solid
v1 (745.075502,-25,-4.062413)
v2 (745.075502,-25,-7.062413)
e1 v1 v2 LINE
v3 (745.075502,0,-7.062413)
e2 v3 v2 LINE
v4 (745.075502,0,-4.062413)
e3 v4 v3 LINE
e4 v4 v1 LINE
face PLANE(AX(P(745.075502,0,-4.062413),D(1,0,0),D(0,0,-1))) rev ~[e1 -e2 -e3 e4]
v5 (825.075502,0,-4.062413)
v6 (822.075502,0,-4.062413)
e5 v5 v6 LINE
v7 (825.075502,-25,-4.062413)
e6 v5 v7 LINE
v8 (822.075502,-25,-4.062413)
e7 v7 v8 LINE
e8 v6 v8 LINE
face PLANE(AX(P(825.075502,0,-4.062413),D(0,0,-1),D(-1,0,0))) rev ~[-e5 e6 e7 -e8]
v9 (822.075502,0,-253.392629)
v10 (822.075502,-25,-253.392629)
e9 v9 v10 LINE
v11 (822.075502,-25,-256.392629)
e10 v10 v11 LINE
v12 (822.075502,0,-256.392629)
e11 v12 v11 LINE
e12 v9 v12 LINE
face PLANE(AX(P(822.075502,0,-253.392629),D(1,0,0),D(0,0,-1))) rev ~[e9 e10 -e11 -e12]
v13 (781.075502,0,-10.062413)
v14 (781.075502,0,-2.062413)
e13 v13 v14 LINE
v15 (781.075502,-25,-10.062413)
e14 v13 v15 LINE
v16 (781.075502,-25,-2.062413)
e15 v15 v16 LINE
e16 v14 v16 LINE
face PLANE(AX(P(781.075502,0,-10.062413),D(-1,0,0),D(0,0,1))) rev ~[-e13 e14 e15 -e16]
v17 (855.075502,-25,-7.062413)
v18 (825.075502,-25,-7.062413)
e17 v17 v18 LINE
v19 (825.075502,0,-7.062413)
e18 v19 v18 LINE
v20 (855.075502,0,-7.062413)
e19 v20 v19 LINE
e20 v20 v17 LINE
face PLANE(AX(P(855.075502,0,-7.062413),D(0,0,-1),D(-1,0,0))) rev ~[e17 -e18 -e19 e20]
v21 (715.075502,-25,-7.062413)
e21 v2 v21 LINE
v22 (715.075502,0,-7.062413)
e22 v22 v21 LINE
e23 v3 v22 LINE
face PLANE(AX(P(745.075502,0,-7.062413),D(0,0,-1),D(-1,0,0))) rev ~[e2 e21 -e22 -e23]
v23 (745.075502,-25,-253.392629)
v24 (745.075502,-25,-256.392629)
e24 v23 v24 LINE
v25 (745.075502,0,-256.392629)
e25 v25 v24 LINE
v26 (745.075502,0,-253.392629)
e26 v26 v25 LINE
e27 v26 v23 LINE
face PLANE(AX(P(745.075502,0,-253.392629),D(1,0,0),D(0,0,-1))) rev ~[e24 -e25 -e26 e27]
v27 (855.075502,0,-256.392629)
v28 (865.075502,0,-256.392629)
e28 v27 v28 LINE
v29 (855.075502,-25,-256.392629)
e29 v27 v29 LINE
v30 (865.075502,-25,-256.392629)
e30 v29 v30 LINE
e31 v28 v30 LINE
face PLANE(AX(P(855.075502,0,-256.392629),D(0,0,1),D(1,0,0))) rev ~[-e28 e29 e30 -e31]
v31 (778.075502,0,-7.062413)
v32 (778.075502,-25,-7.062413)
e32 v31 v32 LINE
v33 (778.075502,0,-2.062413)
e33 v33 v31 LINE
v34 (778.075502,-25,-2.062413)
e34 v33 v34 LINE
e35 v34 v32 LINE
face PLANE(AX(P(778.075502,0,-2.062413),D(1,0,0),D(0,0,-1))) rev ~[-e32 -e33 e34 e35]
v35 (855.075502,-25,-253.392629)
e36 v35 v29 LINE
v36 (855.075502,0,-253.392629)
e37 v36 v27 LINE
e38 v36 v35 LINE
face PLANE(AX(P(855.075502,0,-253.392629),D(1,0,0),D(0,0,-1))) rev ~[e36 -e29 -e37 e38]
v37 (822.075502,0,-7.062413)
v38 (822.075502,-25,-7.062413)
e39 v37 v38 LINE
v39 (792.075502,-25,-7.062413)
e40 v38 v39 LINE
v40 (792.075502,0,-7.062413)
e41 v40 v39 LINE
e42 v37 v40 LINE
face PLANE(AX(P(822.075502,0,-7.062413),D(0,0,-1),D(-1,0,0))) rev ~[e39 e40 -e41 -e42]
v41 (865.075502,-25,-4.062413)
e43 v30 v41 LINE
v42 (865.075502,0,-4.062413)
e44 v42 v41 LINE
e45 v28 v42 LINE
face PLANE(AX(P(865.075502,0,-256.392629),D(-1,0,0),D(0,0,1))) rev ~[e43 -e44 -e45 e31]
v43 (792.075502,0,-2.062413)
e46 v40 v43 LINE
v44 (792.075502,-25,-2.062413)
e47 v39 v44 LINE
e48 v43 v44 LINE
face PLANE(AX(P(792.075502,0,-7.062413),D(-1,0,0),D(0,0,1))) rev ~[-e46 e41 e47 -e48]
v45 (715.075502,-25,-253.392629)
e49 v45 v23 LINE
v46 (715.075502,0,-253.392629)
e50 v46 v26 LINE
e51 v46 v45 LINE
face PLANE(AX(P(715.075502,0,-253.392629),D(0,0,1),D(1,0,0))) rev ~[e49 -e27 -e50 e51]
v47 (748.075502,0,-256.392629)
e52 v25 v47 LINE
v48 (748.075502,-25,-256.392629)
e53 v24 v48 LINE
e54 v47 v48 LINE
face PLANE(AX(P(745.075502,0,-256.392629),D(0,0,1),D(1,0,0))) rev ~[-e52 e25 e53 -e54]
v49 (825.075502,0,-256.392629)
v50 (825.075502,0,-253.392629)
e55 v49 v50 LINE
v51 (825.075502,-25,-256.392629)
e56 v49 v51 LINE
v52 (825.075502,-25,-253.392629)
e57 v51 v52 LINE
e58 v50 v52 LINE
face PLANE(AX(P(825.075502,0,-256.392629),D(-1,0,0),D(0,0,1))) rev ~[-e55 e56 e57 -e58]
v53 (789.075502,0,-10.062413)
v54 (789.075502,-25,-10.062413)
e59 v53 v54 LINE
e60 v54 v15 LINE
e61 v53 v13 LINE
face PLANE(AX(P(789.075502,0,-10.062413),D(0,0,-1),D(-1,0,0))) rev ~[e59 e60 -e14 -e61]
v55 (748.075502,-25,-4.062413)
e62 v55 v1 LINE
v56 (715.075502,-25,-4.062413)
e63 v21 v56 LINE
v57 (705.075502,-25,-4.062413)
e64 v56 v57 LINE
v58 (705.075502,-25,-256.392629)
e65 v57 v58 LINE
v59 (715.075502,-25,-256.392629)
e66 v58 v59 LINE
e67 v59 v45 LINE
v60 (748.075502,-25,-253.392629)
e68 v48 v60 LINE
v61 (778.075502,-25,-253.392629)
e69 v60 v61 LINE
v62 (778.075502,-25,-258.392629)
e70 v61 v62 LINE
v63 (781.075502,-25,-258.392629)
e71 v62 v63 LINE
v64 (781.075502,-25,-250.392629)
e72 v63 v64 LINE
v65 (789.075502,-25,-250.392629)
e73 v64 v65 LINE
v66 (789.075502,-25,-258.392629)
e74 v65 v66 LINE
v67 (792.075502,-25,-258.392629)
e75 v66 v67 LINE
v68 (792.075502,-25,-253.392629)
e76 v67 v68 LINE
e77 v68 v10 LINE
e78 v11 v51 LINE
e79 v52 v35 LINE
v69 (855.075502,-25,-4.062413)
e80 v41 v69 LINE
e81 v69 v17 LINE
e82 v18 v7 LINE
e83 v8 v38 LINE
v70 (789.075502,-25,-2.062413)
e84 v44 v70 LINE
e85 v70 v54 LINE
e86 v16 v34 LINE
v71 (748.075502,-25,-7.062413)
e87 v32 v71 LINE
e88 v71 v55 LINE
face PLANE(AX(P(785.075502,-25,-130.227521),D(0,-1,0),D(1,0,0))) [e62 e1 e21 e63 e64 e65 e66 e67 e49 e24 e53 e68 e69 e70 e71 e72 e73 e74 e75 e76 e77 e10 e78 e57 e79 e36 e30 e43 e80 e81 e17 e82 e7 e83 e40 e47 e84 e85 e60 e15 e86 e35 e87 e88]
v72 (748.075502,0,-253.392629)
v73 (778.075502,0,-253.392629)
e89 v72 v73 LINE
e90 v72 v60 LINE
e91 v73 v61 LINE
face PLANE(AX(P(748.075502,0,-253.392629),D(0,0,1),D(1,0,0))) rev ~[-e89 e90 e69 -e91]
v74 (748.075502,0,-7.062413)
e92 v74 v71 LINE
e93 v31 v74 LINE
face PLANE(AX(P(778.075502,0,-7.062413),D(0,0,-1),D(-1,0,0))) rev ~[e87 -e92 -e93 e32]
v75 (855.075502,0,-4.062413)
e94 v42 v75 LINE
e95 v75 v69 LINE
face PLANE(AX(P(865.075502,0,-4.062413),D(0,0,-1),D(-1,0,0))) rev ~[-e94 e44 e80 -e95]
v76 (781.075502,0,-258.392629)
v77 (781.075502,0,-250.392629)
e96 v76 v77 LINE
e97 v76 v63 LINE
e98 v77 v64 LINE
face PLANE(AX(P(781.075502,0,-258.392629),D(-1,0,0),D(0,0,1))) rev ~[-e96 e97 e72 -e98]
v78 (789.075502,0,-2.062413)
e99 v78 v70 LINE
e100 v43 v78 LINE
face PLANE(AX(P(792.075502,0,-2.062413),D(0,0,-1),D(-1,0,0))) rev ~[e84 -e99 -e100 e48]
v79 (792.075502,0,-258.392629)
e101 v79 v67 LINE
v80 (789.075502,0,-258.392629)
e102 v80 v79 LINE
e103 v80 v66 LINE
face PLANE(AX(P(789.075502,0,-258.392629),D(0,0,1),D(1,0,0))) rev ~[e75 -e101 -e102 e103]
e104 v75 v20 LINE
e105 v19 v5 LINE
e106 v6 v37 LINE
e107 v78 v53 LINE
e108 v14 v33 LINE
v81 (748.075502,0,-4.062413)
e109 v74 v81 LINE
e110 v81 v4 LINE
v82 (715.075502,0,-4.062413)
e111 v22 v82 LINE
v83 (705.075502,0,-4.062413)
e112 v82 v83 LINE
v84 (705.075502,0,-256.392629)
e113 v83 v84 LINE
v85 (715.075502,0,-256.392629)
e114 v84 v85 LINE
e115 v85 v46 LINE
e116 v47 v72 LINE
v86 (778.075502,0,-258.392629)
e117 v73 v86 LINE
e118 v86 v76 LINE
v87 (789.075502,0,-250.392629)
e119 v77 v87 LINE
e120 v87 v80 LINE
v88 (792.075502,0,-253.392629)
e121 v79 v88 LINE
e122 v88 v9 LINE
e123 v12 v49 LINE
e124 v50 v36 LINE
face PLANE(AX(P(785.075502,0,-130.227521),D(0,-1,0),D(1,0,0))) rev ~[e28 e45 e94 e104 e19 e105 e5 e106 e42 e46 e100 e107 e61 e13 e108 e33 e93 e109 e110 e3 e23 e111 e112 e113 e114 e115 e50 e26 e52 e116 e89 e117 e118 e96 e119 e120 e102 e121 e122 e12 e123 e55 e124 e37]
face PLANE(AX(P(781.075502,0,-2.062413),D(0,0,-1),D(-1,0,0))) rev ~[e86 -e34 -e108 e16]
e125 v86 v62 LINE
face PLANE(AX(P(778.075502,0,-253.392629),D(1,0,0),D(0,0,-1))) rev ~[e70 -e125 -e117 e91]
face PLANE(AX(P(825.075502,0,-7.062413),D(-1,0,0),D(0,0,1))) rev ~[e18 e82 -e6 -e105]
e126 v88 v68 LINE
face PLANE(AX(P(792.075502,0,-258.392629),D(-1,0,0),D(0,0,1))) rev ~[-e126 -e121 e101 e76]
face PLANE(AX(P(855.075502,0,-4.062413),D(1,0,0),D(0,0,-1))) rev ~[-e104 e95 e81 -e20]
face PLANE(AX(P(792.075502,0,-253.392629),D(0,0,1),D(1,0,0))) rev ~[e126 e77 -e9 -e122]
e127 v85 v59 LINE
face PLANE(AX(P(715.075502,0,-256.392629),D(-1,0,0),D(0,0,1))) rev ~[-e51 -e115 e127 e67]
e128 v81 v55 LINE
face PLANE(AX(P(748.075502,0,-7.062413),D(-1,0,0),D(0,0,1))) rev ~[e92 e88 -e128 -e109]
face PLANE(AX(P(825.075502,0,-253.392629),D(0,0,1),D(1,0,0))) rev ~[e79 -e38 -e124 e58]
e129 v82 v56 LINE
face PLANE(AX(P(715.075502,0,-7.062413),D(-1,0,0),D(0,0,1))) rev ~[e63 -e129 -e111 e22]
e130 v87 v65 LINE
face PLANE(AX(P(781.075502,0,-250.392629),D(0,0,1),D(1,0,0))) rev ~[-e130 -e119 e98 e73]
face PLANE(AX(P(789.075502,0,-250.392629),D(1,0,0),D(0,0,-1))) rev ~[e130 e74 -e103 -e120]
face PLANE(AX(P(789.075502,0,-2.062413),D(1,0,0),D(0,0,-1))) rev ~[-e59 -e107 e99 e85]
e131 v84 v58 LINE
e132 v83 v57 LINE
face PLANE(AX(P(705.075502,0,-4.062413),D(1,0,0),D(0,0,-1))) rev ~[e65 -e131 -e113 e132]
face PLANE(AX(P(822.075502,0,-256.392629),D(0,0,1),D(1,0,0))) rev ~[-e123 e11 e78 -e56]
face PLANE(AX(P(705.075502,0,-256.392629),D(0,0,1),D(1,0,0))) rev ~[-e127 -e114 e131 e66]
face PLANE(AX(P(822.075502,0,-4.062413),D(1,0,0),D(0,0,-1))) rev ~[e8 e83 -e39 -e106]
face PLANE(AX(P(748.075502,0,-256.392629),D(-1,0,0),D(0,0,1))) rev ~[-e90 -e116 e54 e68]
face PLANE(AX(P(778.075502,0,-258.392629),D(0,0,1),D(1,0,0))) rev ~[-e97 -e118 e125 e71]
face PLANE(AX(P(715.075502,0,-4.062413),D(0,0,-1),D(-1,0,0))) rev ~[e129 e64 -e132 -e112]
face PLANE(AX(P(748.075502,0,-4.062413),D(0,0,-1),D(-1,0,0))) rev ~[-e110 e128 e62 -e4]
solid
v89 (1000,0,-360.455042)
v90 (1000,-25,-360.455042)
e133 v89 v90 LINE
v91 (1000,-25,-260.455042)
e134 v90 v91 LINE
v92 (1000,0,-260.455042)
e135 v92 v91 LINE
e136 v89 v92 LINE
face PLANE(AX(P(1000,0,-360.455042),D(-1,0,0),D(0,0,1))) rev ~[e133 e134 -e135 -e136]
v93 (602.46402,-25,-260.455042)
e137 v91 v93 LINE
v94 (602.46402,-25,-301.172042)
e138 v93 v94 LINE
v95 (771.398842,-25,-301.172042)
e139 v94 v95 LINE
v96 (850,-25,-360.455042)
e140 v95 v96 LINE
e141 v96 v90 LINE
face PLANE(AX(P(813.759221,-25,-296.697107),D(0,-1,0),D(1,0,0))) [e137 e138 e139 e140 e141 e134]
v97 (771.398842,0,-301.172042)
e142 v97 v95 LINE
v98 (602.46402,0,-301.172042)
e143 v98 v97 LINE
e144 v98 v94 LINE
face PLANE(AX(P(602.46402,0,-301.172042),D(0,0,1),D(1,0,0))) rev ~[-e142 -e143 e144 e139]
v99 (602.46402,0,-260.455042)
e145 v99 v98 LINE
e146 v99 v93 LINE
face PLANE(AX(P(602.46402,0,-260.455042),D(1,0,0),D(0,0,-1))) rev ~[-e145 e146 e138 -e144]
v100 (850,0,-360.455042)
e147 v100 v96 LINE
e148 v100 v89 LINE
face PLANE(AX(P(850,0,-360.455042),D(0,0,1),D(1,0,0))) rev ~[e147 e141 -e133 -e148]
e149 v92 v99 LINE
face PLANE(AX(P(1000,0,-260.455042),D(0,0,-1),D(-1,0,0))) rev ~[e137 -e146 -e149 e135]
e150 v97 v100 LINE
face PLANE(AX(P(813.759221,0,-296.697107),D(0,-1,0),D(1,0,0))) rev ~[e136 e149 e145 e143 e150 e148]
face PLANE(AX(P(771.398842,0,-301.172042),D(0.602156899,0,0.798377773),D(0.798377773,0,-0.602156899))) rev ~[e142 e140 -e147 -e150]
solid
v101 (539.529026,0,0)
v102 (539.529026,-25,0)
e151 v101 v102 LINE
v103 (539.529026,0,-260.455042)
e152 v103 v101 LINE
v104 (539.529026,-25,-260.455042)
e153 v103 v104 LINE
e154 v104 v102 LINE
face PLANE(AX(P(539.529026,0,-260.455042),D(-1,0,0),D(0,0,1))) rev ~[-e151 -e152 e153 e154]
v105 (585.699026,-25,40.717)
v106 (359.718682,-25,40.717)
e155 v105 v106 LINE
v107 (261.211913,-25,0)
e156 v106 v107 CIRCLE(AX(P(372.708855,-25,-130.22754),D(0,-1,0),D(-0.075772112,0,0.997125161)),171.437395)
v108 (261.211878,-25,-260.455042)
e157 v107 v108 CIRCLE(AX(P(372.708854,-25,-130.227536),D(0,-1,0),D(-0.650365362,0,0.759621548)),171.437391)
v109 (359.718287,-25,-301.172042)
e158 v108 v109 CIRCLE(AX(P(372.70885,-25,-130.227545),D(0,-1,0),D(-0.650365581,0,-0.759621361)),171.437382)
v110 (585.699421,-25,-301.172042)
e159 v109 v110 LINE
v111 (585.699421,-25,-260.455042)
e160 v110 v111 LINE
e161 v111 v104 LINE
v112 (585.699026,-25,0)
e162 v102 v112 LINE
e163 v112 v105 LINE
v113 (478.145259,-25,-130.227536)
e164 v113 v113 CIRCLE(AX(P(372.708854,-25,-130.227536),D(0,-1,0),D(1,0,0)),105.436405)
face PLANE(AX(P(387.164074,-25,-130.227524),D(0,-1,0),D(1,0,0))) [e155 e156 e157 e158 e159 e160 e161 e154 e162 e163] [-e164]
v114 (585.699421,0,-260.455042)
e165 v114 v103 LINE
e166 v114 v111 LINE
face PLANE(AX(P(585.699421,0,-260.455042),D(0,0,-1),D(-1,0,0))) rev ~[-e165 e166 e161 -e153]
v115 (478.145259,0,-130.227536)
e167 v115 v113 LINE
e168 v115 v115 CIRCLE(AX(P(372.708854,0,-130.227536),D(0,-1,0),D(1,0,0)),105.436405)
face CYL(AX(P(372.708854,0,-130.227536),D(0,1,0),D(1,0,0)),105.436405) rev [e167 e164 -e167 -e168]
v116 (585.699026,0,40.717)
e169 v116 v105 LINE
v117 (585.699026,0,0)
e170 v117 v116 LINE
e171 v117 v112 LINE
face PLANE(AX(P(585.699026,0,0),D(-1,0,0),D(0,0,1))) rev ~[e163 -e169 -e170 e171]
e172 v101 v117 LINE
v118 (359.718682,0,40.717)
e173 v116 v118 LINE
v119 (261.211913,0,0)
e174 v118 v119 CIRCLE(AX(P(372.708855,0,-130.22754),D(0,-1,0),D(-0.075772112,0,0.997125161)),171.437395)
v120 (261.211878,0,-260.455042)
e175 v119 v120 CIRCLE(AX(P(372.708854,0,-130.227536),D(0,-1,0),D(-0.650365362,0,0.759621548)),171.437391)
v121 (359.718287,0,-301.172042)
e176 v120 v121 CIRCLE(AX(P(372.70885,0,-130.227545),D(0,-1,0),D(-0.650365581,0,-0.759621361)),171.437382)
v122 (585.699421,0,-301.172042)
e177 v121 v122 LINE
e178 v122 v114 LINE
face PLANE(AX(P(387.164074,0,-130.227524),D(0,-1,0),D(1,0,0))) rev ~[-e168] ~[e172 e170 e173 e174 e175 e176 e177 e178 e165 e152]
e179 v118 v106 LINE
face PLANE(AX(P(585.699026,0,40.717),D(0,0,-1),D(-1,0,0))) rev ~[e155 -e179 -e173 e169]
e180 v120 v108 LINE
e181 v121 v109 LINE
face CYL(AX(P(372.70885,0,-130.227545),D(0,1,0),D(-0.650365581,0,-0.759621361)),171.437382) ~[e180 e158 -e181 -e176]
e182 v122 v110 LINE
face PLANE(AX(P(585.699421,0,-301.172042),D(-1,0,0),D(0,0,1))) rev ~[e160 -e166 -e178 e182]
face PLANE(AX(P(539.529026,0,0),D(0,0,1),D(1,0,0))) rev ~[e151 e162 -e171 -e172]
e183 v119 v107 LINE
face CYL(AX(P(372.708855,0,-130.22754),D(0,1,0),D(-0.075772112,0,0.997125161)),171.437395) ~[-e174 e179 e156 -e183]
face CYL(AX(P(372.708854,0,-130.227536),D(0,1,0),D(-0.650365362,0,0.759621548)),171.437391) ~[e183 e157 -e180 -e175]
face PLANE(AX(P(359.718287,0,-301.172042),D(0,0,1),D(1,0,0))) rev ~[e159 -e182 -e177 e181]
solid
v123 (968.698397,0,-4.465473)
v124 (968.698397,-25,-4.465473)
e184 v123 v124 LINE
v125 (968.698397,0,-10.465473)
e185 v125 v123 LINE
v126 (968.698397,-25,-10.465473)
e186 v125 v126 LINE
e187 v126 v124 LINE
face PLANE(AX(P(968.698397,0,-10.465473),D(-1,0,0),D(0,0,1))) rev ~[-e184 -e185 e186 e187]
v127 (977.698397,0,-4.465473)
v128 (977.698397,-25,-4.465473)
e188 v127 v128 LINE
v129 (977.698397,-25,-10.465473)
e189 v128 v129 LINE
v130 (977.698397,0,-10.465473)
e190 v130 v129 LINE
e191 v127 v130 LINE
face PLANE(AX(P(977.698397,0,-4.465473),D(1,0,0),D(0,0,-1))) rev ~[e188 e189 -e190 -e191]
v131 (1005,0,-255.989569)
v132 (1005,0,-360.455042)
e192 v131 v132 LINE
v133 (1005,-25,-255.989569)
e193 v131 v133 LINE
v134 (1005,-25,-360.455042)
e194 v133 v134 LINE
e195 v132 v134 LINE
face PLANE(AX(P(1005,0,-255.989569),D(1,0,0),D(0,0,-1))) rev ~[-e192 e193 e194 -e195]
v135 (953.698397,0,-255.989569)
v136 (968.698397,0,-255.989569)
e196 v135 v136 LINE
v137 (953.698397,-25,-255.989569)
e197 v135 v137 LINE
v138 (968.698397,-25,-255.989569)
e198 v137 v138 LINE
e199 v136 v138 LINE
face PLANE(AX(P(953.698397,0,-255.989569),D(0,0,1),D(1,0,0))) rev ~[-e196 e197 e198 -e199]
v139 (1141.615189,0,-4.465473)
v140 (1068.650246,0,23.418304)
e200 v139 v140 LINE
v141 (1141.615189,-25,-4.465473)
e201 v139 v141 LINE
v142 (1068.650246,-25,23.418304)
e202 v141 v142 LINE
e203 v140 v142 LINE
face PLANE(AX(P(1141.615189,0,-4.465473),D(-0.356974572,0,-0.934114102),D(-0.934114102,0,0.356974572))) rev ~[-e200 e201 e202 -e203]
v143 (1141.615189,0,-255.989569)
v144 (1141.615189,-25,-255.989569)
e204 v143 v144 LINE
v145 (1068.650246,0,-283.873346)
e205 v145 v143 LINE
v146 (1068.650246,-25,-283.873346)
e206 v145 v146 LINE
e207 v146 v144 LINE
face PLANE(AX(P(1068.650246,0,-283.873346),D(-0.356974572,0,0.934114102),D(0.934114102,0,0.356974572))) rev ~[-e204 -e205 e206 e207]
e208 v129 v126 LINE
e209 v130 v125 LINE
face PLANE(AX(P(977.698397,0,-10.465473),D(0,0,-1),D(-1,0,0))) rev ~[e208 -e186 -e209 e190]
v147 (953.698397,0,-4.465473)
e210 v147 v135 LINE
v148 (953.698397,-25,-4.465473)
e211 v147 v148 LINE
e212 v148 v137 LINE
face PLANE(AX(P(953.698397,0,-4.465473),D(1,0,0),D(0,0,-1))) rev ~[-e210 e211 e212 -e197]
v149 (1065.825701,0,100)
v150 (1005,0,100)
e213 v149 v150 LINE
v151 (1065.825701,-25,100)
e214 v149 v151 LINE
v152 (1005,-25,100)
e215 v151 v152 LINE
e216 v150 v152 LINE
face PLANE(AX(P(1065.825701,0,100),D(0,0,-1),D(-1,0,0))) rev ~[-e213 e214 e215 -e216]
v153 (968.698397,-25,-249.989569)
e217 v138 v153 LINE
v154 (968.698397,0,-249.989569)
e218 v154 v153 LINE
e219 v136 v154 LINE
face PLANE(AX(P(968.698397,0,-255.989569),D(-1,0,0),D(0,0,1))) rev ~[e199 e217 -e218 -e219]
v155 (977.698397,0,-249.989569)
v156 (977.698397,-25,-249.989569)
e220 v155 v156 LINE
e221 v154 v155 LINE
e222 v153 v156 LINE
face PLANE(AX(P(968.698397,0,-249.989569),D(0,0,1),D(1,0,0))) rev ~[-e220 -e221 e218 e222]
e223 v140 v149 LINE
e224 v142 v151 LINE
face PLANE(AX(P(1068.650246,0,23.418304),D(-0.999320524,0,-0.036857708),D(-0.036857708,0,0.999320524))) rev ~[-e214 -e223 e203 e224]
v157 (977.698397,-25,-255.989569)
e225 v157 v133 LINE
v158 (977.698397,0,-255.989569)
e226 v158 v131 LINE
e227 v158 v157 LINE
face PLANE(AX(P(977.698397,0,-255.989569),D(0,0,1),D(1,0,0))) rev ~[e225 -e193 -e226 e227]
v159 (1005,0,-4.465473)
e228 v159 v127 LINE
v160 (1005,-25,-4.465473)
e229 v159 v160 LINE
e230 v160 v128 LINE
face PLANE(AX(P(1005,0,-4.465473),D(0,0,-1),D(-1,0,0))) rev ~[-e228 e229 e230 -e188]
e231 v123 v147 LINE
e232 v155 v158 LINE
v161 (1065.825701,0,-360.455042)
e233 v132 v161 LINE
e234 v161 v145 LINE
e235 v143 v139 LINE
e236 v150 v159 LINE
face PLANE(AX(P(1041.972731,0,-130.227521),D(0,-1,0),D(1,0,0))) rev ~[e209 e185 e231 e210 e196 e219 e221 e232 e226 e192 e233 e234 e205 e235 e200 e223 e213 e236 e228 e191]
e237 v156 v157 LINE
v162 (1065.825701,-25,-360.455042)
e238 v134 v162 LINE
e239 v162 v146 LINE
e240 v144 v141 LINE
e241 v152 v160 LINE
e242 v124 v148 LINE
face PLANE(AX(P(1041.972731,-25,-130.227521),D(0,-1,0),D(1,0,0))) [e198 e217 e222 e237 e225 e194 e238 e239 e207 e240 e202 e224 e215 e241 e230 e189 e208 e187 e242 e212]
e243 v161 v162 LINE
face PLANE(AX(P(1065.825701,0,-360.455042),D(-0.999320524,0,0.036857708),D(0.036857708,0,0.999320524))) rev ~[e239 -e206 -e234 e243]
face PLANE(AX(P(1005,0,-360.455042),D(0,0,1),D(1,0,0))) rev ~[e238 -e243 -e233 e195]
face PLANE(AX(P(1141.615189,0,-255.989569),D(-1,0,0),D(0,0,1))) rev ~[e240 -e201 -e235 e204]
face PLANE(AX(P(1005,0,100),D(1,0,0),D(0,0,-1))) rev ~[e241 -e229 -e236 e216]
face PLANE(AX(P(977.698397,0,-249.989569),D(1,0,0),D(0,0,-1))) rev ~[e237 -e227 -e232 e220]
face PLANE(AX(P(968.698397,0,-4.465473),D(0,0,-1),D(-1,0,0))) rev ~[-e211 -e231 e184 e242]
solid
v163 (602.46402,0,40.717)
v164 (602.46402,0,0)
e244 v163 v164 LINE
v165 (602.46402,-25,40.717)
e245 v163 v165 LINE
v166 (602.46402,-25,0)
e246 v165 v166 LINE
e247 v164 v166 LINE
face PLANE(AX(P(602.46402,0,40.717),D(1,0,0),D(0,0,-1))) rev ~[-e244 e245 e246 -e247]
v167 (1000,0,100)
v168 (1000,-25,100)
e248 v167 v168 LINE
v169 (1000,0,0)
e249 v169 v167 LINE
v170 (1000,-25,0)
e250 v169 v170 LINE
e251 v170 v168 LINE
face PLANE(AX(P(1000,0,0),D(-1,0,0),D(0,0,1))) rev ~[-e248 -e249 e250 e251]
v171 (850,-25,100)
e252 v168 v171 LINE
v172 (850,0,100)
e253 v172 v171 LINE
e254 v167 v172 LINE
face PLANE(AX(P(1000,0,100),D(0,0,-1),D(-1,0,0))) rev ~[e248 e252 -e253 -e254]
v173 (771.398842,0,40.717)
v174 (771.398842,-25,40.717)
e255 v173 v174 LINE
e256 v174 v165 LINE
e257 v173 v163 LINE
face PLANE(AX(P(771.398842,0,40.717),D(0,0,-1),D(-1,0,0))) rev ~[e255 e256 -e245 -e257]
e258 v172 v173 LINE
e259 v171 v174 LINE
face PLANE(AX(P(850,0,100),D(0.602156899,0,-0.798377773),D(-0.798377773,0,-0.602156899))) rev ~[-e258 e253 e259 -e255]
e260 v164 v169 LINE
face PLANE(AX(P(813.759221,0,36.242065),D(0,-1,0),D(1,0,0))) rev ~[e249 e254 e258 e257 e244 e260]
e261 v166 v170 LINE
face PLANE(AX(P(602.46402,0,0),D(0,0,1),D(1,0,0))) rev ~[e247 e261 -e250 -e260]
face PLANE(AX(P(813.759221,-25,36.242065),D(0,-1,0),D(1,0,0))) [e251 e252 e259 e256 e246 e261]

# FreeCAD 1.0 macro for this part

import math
import FreeCAD as App
import Part
import Sketcher

V = App.Vector
Q = App.Units.Quantity

doc = App.newDocument("Part")
body = doc.addObject("PartDesign::Body", "Body")
body.AllowCompound = True

sketch1 = body.newObject("Sketcher::SketchObject", "Sketch")
sketch1.AttachmentSupport = (doc.getObject("XZ_Plane"), [""])
sketch1.MapMode = "FlatFace"
sketch1.addGeometry(Part.LineSegment(V(705.075502, -4.062413, 0), V(705.075502, -256.392629, 0)), False)
sketch1.addGeometry(Part.LineSegment(V(705.075502, -256.392629, 0), V(715.075502, -256.392629, 0)), False)
sketch1.addGeometry(Part.LineSegment(V(715.075502, -256.392629, 0), V(715.075502, -253.392629, 0)), False)
sketch1.addGeometry(Part.LineSegment(V(715.075502, -253.392629, 0), V(745.075502, -253.392629, 0)), False)
sketch1.addGeometry(Part.LineSegment(V(745.075502, -253.392629, 0), V(745.075502, -256.392629, 0)), False)
sketch1.addGeometry(Part.LineSegment(V(745.075502, -256.392629, 0), V(748.075502, -256.392629, 0)), False)
sketch1.addGeometry(Part.LineSegment(V(748.075502, -256.392629, 0), V(748.075502, -253.392629, 0)), False)
sketch1.addGeometry(Part.LineSegment(V(748.075502, -253.392629, 0), V(778.075502, -253.392629, 0)), False)
sketch1.addGeometry(Part.LineSegment(V(778.075502, -253.392629, 0), V(778.075502, -258.392629, 0)), False)
sketch1.addGeometry(Part.LineSegment(V(778.075502, -258.392629, 0), V(781.075502, -258.392629, 0)), False)
sketch1.addGeometry(Part.LineSegment(V(781.075502, -258.392629, 0), V(781.075502, -250.392629, 0)), False)
sketch1.addGeometry(Part.LineSegment(V(781.075502, -250.392629, 0), V(789.075502, -250.392629, 0)), False)
sketch1.addGeometry(Part.LineSegment(V(789.075502, -250.392629, 0), V(789.075502, -258.392629, 0)), False)
sketch1.addGeometry(Part.LineSegment(V(789.075502, -258.392629, 0), V(792.075502, -258.392629, 0)), False)
sketch1.addGeometry(Part.LineSegment(V(792.075502, -258.392629, 0), V(792.075502, -253.392629, 0)), False)
sketch1.addGeometry(Part.LineSegment(V(792.075502, -253.392629, 0), V(822.075502, -253.392629, 0)), False)
sketch1.addGeometry(Part.LineSegment(V(822.075502, -253.392629, 0), V(822.075502, -256.392629, 0)), False)
sketch1.addGeometry(Part.LineSegment(V(822.075502, -256.392629, 0), V(825.075502, -256.392629, 0)), False)
sketch1.addGeometry(Part.LineSegment(V(825.075502, -256.392629, 0), V(825.075502, -253.392629, 0)), False)
sketch1.addGeometry(Part.LineSegment(V(825.075502, -253.392629, 0), V(855.075502, -253.392629, 0)), False)
sketch1.addGeometry(Part.LineSegment(V(855.075502, -253.392629, 0), V(855.075502, -256.392629, 0)), False)
sketch1.addGeometry(Part.LineSegment(V(855.075502, -256.392629, 0), V(865.075502, -256.392629, 0)), False)
sketch1.addGeometry(Part.LineSegment(V(865.075502, -256.392629, 0), V(865.075502, -4.062413, 0)), False)
sketch1.addGeometry(Part.LineSegment(V(865.075502, -4.062413, 0), V(855.075502, -4.062413, 0)), False)
sketch1.addGeometry(Part.LineSegment(V(855.075502, -4.062413, 0), V(855.075502, -7.062413, 0)), False)
sketch1.addGeometry(Part.LineSegment(V(855.075502, -7.062413, 0), V(825.075502, -7.062413, 0)), False)
sketch1.addGeometry(Part.LineSegment(V(825.075502, -7.062413, 0), V(825.075502, -4.062413, 0)), False)
sketch1.addGeometry(Part.LineSegment(V(825.075502, -4.062413, 0), V(822.075502, -4.062413, 0)), False)
sketch1.addGeometry(Part.LineSegment(V(822.075502, -4.062413, 0), V(822.075502, -7.062413, 0)), False)
sketch1.addGeometry(Part.LineSegment(V(822.075502, -7.062413, 0), V(792.075502, -7.062413, 0)), False)
sketch1.addGeometry(Part.LineSegment(V(792.075502, -7.062413, 0), V(792.075502, -2.062413, 0)), False)
sketch1.addGeometry(Part.LineSegment(V(792.075502, -2.062413, 0), V(789.075502, -2.062413, 0)), False)
sketch1.addGeometry(Part.LineSegment(V(789.075502, -2.062413, 0), V(789.075502, -10.062413, 0)), False)
sketch1.addGeometry(Part.LineSegment(V(789.075502, -10.062413, 0), V(781.075502, -10.062413, 0)), False)
sketch1.addGeometry(Part.LineSegment(V(781.075502, -10.062413, 0), V(781.075502, -2.062413, 0)), False)
sketch1.addGeometry(Part.LineSegment(V(781.075502, -2.062413, 0), V(778.075502, -2.062413, 0)), False)
sketch1.addGeometry(Part.LineSegment(V(778.075502, -2.062413, 0), V(778.075502, -7.062413, 0)), False)
sketch1.addGeometry(Part.LineSegment(V(778.075502, -7.062413, 0), V(748.075502, -7.062413, 0)), False)
sketch1.addGeometry(Part.LineSegment(V(748.075502, -7.062413, 0), V(748.075502, -4.062413, 0)), False)
sketch1.addGeometry(Part.LineSegment(V(748.075502, -4.062413, 0), V(745.075502, -4.062413, 0)), False)
sketch1.addGeometry(Part.LineSegment(V(745.075502, -4.062413, 0), V(745.075502, -7.062413, 0)), False)
sketch1.addGeometry(Part.LineSegment(V(745.075502, -7.062413, 0), V(715.075502, -7.062413, 0)), False)
sketch1.addGeometry(Part.LineSegment(V(715.075502, -7.062413, 0), V(715.075502, -4.062413, 0)), False)
sketch1.addGeometry(Part.LineSegment(V(715.075502, -4.062413, 0), V(705.075502, -4.062413, 0)), False)
sketch1.addGeometry(Part.LineSegment(V(1000, -260.455042, 0), V(602.46402, -260.455042, 0)), False)
sketch1.addGeometry(Part.LineSegment(V(602.46402, -260.455042, 0), V(602.46402, -301.172042, 0)), False)
sketch1.addGeometry(Part.LineSegment(V(602.46402, -301.172042, 0), V(771.398842, -301.172042, 0)), False)
sketch1.addGeometry(Part.LineSegment(V(771.398842, -301.172042, 0), V(850, -360.455042, 0)), False)
sketch1.addGeometry(Part.LineSegment(V(850, -360.455042, 0), V(1000, -360.455042, 0)), False)
sketch1.addGeometry(Part.LineSegment(V(1000, -360.455042, 0), V(1000, -260.455042, 0)), False)
sketch1.addGeometry(Part.LineSegment(V(953.698397, -4.465473, 0), V(953.698397, -255.989569, 0)), False)
sketch1.addGeometry(Part.LineSegment(V(953.698397, -255.989569, 0), V(968.698397, -255.989569, 0)), False)
sketch1.addGeometry(Part.LineSegment(V(968.698397, -255.989569, 0), V(968.698397, -249.989569, 0)), False)
sketch1.addGeometry(Part.LineSegment(V(968.698397, -249.989569, 0), V(977.698397, -249.989569, 0)), False)
sketch1.addGeometry(Part.LineSegment(V(977.698397, -249.989569, 0), V(977.698397, -255.989569, 0)), False)
sketch1.addGeometry(Part.LineSegment(V(977.698397, -255.989569, 0), V(1005, -255.989569, 0)), False)
sketch1.addGeometry(Part.LineSegment(V(1005, -255.989569, 0), V(1005, -360.455042, 0)), False)
sketch1.addGeometry(Part.LineSegment(V(1005, -360.455042, 0), V(1065.825701, -360.455042, 0)), False)
sketch1.addGeometry(Part.LineSegment(V(1065.825701, -360.455042, 0), V(1068.650246, -283.873346, 0)), False)
sketch1.addGeometry(Part.LineSegment(V(1068.650246, -283.873346, 0), V(1141.615189, -255.989569, 0)), False)
sketch1.addGeometry(Part.LineSegment(V(1141.615189, -255.989569, 0), V(1141.615189, -4.465473, 0)), False)
sketch1.addGeometry(Part.LineSegment(V(1141.615189, -4.465473, 0), V(1068.650246, 23.418304, 0)), False)
sketch1.addGeometry(Part.LineSegment(V(1068.650246, 23.418304, 0), V(1065.825701, 100, 0)), False)
sketch1.addGeometry(Part.LineSegment(V(1065.825701, 100, 0), V(1005, 100, 0)), False)
sketch1.addGeometry(Part.LineSegment(V(1005, 100, 0), V(1005, -4.465473, 0)), False)
sketch1.addGeometry(Part.LineSegment(V(1005, -4.465473, 0), V(977.698397, -4.465473, 0)), False)
sketch1.addGeometry(Part.LineSegment(V(977.698397, -4.465473, 0), V(977.698397, -10.465473, 0)), False)
sketch1.addGeometry(Part.LineSegment(V(977.698397, -10.465473, 0), V(968.698397, -10.465473, 0)), False)
sketch1.addGeometry(Part.LineSegment(V(968.698397, -10.465473, 0), V(968.698397, -4.465473, 0)), False)
sketch1.addGeometry(Part.LineSegment(V(968.698397, -4.465473, 0), V(953.698397, -4.465473, 0)), False)
sketch1.addGeometry(Part.LineSegment(V(602.46402, 40.717, 0), V(602.46402, 0, 0)), False)
sketch1.addGeometry(Part.LineSegment(V(602.46402, 0, 0), V(1000, 0, 0)), False)
sketch1.addGeometry(Part.LineSegment(V(1000, 0, 0), V(1000, 100, 0)), False)
sketch1.addGeometry(Part.LineSegment(V(1000, 100, 0), V(850, 100, 0)), False)
sketch1.addGeometry(Part.LineSegment(V(850, 100, 0), V(771.398842, 40.717, 0)), False)
sketch1.addGeometry(Part.LineSegment(V(771.398842, 40.717, 0), V(602.46402, 40.717, 0)), False)
sketch1.addConstraint(Sketcher.Constraint("Coincident", 0, 2, 1, 1))
sketch1.addConstraint(Sketcher.Constraint("Coincident", 1, 2, 2, 1))
sketch1.addConstraint(Sketcher.Constraint("Coincident", 2, 2, 3, 1))
sketch1.addConstraint(Sketcher.Constraint("Coincident", 3, 2, 4, 1))
sketch1.addConstraint(Sketcher.Constraint("Coincident", 4, 2, 5, 1))
sketch1.addConstraint(Sketcher.Constraint("Coincident", 5, 2, 6, 1))
sketch1.addConstraint(Sketcher.Constraint("Coincident", 6, 2, 7, 1))
sketch1.addConstraint(Sketcher.Constraint("Coincident", 7, 2, 8, 1))
sketch1.addConstraint(Sketcher.Constraint("Coincident", 8, 2, 9, 1))
sketch1.addConstraint(Sketcher.Constraint("Coincident", 9, 2, 10, 1))
sketch1.addConstraint(Sketcher.Constraint("Coincident", 10, 2, 11, 1))
sketch1.addConstraint(Sketcher.Constraint("Coincident", 11, 2, 12, 1))
sketch1.addConstraint(Sketcher.Constraint("Coincident", 12, 2, 13, 1))
sketch1.addConstraint(Sketcher.Constraint("Coincident", 13, 2, 14, 1))
sketch1.addConstraint(Sketcher.Constraint("Coincident", 14, 2, 15, 1))
sketch1.addConstraint(Sketcher.Constraint("Coincident", 15, 2, 16, 1))
sketch1.addConstraint(Sketcher.Constraint("Coincident", 16, 2, 17, 1))
sketch1.addConstraint(Sketcher.Constraint("Coincident", 17, 2, 18, 1))
sketch1.addConstraint(Sketcher.Constraint("Coincident", 18, 2, 19, 1))
sketch1.addConstraint(Sketcher.Constraint("Coincident", 19, 2, 20, 1))
sketch1.addConstraint(Sketcher.Constraint("Coincident", 20, 2, 21, 1))
sketch1.addConstraint(Sketcher.Constraint("Coincident", 21, 2, 22, 1))
sketch1.addConstraint(Sketcher.Constraint("Coincident", 22, 2, 23, 1))
sketch1.addConstraint(Sketcher.Constraint("Coincident", 23, 2, 24, 1))
sketch1.addConstraint(Sketcher.Constraint("Coincident", 24, 2, 25, 1))
sketch1.addConstraint(Sketcher.Constraint("Coincident", 25, 2, 26, 1))
sketch1.addConstraint(Sketcher.Constraint("Coincident", 26, 2, 27, 1))
sketch1.addConstraint(Sketcher.Constraint("Coincident", 27, 2, 28, 1))
sketch1.addConstraint(Sketcher.Constraint("Coincident", 28, 2, 29, 1))
sketch1.addConstraint(Sketcher.Constraint("Coincident", 29, 2, 30, 1))
sketch1.addConstraint(Sketcher.Constraint("Coincident", 30, 2, 31, 1))
sketch1.addConstraint(Sketcher.Constraint("Coincident", 31, 2, 32, 1))
sketch1.addConstraint(Sketcher.Constraint("Coincident", 32, 2, 33, 1))
sketch1.addConstraint(Sketcher.Constraint("Coincident", 33, 2, 34, 1))
sketch1.addConstraint(Sketcher.Constraint("Coincident", 34, 2, 35, 1))
sketch1.addConstraint(Sketcher.Constraint("Coincident", 35, 2, 36, 1))
sketch1.addConstraint(Sketcher.Constraint("Coincident", 36, 2, 37, 1))
sketch1.addConstraint(Sketcher.Constraint("Coincident", 37, 2, 38, 1))
sketch1.addConstraint(Sketcher.Constraint("Coincident", 38, 2, 39, 1))
sketch1.addConstraint(Sketcher.Constraint("Coincident", 39, 2, 40, 1))
sketch1.addConstraint(Sketcher.Constraint("Coincident", 40, 2, 41, 1))
sketch1.addConstraint(Sketcher.Constraint("Coincident", 41, 2, 42, 1))
sketch1.addConstraint(Sketcher.Constraint("Coincident", 42, 2, 43, 1))
sketch1.addConstraint(Sketcher.Constraint("Coincident", 43, 2, 0, 1))
sketch1.addConstraint(Sketcher.Constraint("Coincident", 44, 2, 45, 1))
sketch1.addConstraint(Sketcher.Constraint("Coincident", 45, 2, 46, 1))
sketch1.addConstraint(Sketcher.Constraint("Coincident", 46, 2, 47, 1))
sketch1.addConstraint(Sketcher.Constraint("Coincident", 47, 2, 48, 1))
sketch1.addConstraint(Sketcher.Constraint("Coincident", 48, 2, 49, 1))
sketch1.addConstraint(Sketcher.Constraint("Coincident", 49, 2, 44, 1))
sketch1.addConstraint(Sketcher.Constraint("Coincident", 50, 2, 51, 1))
sketch1.addConstraint(Sketcher.Constraint("Coincident", 51, 2, 52, 1))
sketch1.addConstraint(Sketcher.Constraint("Coincident", 52, 2, 53, 1))
sketch1.addConstraint(Sketcher.Constraint("Coincident", 53, 2, 54, 1))
sketch1.addConstraint(Sketcher.Constraint("Coincident", 54, 2, 55, 1))
sketch1.addConstraint(Sketcher.Constraint("Coincident", 55, 2, 56, 1))
sketch1.addConstraint(Sketcher.Constraint("Coincident", 56, 2, 57, 1))
sketch1.addConstraint(Sketcher.Constraint("Coincident", 57, 2, 58, 1))
sketch1.addConstraint(Sketcher.Constraint("Coincident", 58, 2, 59, 1))
sketch1.addConstraint(Sketcher.Constraint("Coincident", 59, 2, 60, 1))
sketch1.addConstraint(Sketcher.Constraint("Coincident", 60, 2, 61, 1))
sketch1.addConstraint(Sketcher.Constraint("Coincident", 61, 2, 62, 1))
sketch1.addConstraint(Sketcher.Constraint("Coincident", 62, 2, 63, 1))
sketch1.addConstraint(Sketcher.Constraint("Coincident", 63, 2, 64, 1))
sketch1.addConstraint(Sketcher.Constraint("Coincident", 64, 2, 65, 1))
sketch1.addConstraint(Sketcher.Constraint("Coincident", 65, 2, 66, 1))
sketch1.addConstraint(Sketcher.Constraint("Coincident", 66, 2, 67, 1))
sketch1.addConstraint(Sketcher.Constraint("Coincident", 67, 2, 68, 1))
sketch1.addConstraint(Sketcher.Constraint("Coincident", 68, 2, 69, 1))
sketch1.addConstraint(Sketcher.Constraint("Coincident", 69, 2, 50, 1))
sketch1.addConstraint(Sketcher.Constraint("Coincident", 70, 2, 71, 1))
sketch1.addConstraint(Sketcher.Constraint("Coincident", 71, 2, 72, 1))
sketch1.addConstraint(Sketcher.Constraint("Coincident", 72, 2, 73, 1))
sketch1.addConstraint(Sketcher.Constraint("Coincident", 73, 2, 74, 1))
sketch1.addConstraint(Sketcher.Constraint("Coincident", 74, 2, 75, 1))
sketch1.addConstraint(Sketcher.Constraint("Coincident", 75, 2, 70, 1))
sketch1.addConstraint(Sketcher.Constraint("Vertical", 0))
sketch1.addConstraint(Sketcher.Constraint("Horizontal", 1))
sketch1.addConstraint(Sketcher.Constraint("Vertical", 2))
sketch1.addConstraint(Sketcher.Constraint("Horizontal", 3))
sketch1.addConstraint(Sketcher.Constraint("Vertical", 4))
sketch1.addConstraint(Sketcher.Constraint("Horizontal", 5))
sketch1.addConstraint(Sketcher.Constraint("Vertical", 6))
sketch1.addConstraint(Sketcher.Constraint("Horizontal", 7))
sketch1.addConstraint(Sketcher.Constraint("Vertical", 8))
sketch1.addConstraint(Sketcher.Constraint("Horizontal", 9))
sketch1.addConstraint(Sketcher.Constraint("Vertical", 10))
sketch1.addConstraint(Sketcher.Constraint("Horizontal", 11))
sketch1.addConstraint(Sketcher.Constraint("Vertical", 12))
sketch1.addConstraint(Sketcher.Constraint("Horizontal", 13))
sketch1.addConstraint(Sketcher.Constraint("Vertical", 14))
sketch1.addConstraint(Sketcher.Constraint("Horizontal", 15))
sketch1.addConstraint(Sketcher.Constraint("Vertical", 16))
sketch1.addConstraint(Sketcher.Constraint("Horizontal", 17))
sketch1.addConstraint(Sketcher.Constraint("Vertical", 18))
sketch1.addConstraint(Sketcher.Constraint("Horizontal", 19))
sketch1.addConstraint(Sketcher.Constraint("Vertical", 20))
sketch1.addConstraint(Sketcher.Constraint("Horizontal", 21))
sketch1.addConstraint(Sketcher.Constraint("Vertical", 22))
sketch1.addConstraint(Sketcher.Constraint("Horizontal", 23))
sketch1.addConstraint(Sketcher.Constraint("Vertical", 24))
sketch1.addConstraint(Sketcher.Constraint("Horizontal", 25))
sketch1.addConstraint(Sketcher.Constraint("Vertical", 26))
sketch1.addConstraint(Sketcher.Constraint("Horizontal", 27))
sketch1.addConstraint(Sketcher.Constraint("Vertical", 28))
sketch1.addConstraint(Sketcher.Constraint("Horizontal", 29))
sketch1.addConstraint(Sketcher.Constraint("Vertical", 30))
sketch1.addConstraint(Sketcher.Constraint("Horizontal", 31))
sketch1.addConstraint(Sketcher.Constraint("Vertical", 32))
sketch1.addConstraint(Sketcher.Constraint("Horizontal", 33))
sketch1.addConstraint(Sketcher.Constraint("Vertical", 34))
sketch1.addConstraint(Sketcher.Constraint("Horizontal", 35))
sketch1.addConstraint(Sketcher.Constraint("Vertical", 36))
sketch1.addConstraint(Sketcher.Constraint("Horizontal", 37))
sketch1.addConstraint(Sketcher.Constraint("Vertical", 38))
sketch1.addConstraint(Sketcher.Constraint("Horizontal", 39))
sketch1.addConstraint(Sketcher.Constraint("Vertical", 40))
sketch1.addConstraint(Sketcher.Constraint("Horizontal", 41))
sketch1.addConstraint(Sketcher.Constraint("Vertical", 42))
sketch1.addConstraint(Sketcher.Constraint("Horizontal", 43))
sketch1.addConstraint(Sketcher.Constraint("Horizontal", 44))
sketch1.addConstraint(Sketcher.Constraint("Vertical", 45))
sketch1.addConstraint(Sketcher.Constraint("Horizontal", 46))
sketch1.addConstraint(Sketcher.Constraint("Horizontal", 48))
sketch1.addConstraint(Sketcher.Constraint("Vertical", 49))
sketch1.addConstraint(Sketcher.Constraint("Vertical", 50))
sketch1.addConstraint(Sketcher.Constraint("Horizontal", 51))
sketch1.addConstraint(Sketcher.Constraint("Vertical", 52))
sketch1.addConstraint(Sketcher.Constraint("Horizontal", 53))
sketch1.addConstraint(Sketcher.Constraint("Vertical", 54))
sketch1.addConstraint(Sketcher.Constraint("Horizontal", 55))
sketch1.addConstraint(Sketcher.Constraint("Vertical", 56))
sketch1.addConstraint(Sketcher.Constraint("Horizontal", 57))
sketch1.addConstraint(Sketcher.Constraint("Vertical", 60))
sketch1.addConstraint(Sketcher.Constraint("Horizontal", 63))
sketch1.addConstraint(Sketcher.Constraint("Vertical", 64))
sketch1.addConstraint(Sketcher.Constraint("Horizontal", 65))
sketch1.addConstraint(Sketcher.Constraint("Vertical", 66))
sketch1.addConstraint(Sketcher.Constraint("Horizontal", 67))
sketch1.addConstraint(Sketcher.Constraint("Vertical", 68))
sketch1.addConstraint(Sketcher.Constraint("Horizontal", 69))
sketch1.addConstraint(Sketcher.Constraint("Vertical", 70))
sketch1.addConstraint(Sketcher.Constraint("Horizontal", 71))
sketch1.addConstraint(Sketcher.Constraint("Vertical", 72))
sketch1.addConstraint(Sketcher.Constraint("Horizontal", 73))
sketch1.addConstraint(Sketcher.Constraint("Horizontal", 75))
sketch1.addConstraint(Sketcher.Constraint("PointOnObject", 70, 2, -1))
sketch1.addConstraint(Sketcher.Constraint("Horizontal", 1, 2, 4, 2))
sketch1.addConstraint(Sketcher.Constraint("Horizontal", 3, 2, 6, 2))
sketch1.addConstraint(Sketcher.Constraint("Horizontal", 9, 2, 12, 2))
sketch1.addConstraint(Sketcher.Constraint("Horizontal", 7, 2, 14, 2))
sketch1.addConstraint(Sketcher.Constraint("Horizontal", 5, 2, 16, 2))
sketch1.addConstraint(Sketcher.Constraint("Horizontal", 15, 2, 18, 2))
sketch1.addConstraint(Sketcher.Constraint("Horizontal", 17, 2, 20, 2))
sketch1.addConstraint(Sketcher.Constraint("Horizontal", 23, 2, 26, 2))
sketch1.addConstraint(Sketcher.Constraint("Horizontal", 25, 2, 28, 2))
sketch1.addConstraint(Sketcher.Constraint("Horizontal", 31, 2, 34, 2))
sketch1.addConstraint(Sketcher.Constraint("Horizontal", 29, 2, 36, 2))
sketch1.addConstraint(Sketcher.Constraint("Horizontal", 27, 2, 38, 2))
sketch1.addConstraint(Sketcher.Constraint("Horizontal", 37, 2, 40, 2))
sketch1.addConstraint(Sketcher.Constraint("Horizontal", 39, 2, 42, 2))
sketch1.addConstraint(Sketcher.Constraint("Horizontal", 51, 2, 54, 2))
sketch1.addConstraint(Sketcher.Constraint("Horizontal", 48, 2, 56, 2))
sketch1.addConstraint(Sketcher.Constraint("Horizontal", 55, 2, 59, 2))
sketch1.addConstraint(Sketcher.Constraint("Horizontal", 60, 2, 64, 2))
sketch1.addConstraint(Sketcher.Constraint("Horizontal", 65, 2, 68, 2))
sketch1.addConstraint(Sketcher.Constraint("Horizontal", 63, 2, 72, 2))
sketch1.addConstraint(Sketcher.Constraint("Vertical", 20, 2, 23, 2))
sketch1.addConstraint(Sketcher.Constraint("Vertical", 18, 2, 25, 2))
sketch1.addConstraint(Sketcher.Constraint("Vertical", 16, 2, 27, 2))
sketch1.addConstraint(Sketcher.Constraint("Vertical", 14, 2, 29, 2))
sketch1.addConstraint(Sketcher.Constraint("Vertical", 12, 2, 31, 2))
sketch1.addConstraint(Sketcher.Constraint("Vertical", 10, 2, 33, 2))
sketch1.addConstraint(Sketcher.Constraint("Vertical", 8, 2, 35, 2))
sketch1.addConstraint(Sketcher.Constraint("Vertical", 6, 2, 37, 2))
sketch1.addConstraint(Sketcher.Constraint("Vertical", 4, 2, 39, 2))
sketch1.addConstraint(Sketcher.Constraint("Vertical", 2, 2, 41, 2))
sketch1.addConstraint(Sketcher.Constraint("Vertical", 58, 2, 61, 2))
sketch1.addConstraint(Sketcher.Constraint("Vertical", 57, 2, 62, 2))
sketch1.addConstraint(Sketcher.Constraint("Vertical", 56, 2, 63, 2))
sketch1.addConstraint(Sketcher.Constraint("Vertical", 54, 2, 65, 2))
sketch1.addConstraint(Sketcher.Constraint("Vertical", 52, 2, 67, 2))
sketch1.addConstraint(Sketcher.Constraint("Vertical", 45, 2, 70, 2))
sketch1.addConstraint(Sketcher.Constraint("Vertical", 49, 2, 71, 2))
sketch1.addConstraint(Sketcher.Constraint("Vertical", 47, 2, 73, 2))
sketch1.addConstraint(Sketcher.Constraint("Vertical", 46, 2, 74, 2))
sketch1.addConstraint(Sketcher.Constraint("Equal", 3, 7))
sketch1.addConstraint(Sketcher.Constraint("Equal", 5, 9))
sketch1.addConstraint(Sketcher.Constraint("Equal", 9, 13))
sketch1.addConstraint(Sketcher.Constraint("Equal", 7, 15))
sketch1.addConstraint(Sketcher.Constraint("Equal", 13, 17))
sketch1.addConstraint(Sketcher.Constraint("Equal", 15, 19))
sketch1.addConstraint(Sketcher.Constraint("Equal", 1, 21))
sketch1.addConstraint(Sketcher.Constraint("Equal", 39, 2))
sketch1.addConstraint(Sketcher.Constraint("Equal", 33, 10))
sketch1.addConstraint(Sketcher.Constraint("Equal", 20, 24))
sketch1.addConstraint(Sketcher.Constraint("Equal", 14, 30))
sketch1.addConstraint(Sketcher.Constraint("Equal", 12, 32))
sketch1.addConstraint(Sketcher.Constraint("Equal", 56, 64))
sketch1.addConstraint(Sketcher.Constraint("Equal", 54, 66))
sketch1.addConstraint(Sketcher.Constraint("Equal", 45, 70))
sketch1.addConstraint(Sketcher.Constraint("Equal", 49, 72))
sketch1.addConstraint(Sketcher.Constraint("Equal", 59, 61))
sketch1.addConstraint(Sketcher.Constraint("DistanceX", 1, 1, 1, 2, Q("10 mm")))
sketch1.addConstraint(Sketcher.Constraint("DistanceX", 3, 1, 3, 2, Q("30 mm")))
sketch1.addConstraint(Sketcher.Constraint("DistanceX", 5, 1, 5, 2, Q("3 mm")))
sketch1.addConstraint(Sketcher.Constraint("DistanceX", 11, 1, 11, 2, Q("8 mm")))
sketch1.addConstraint(Sketcher.Constraint("DistanceX", 48, 1, 48, 2, Q("150 mm")))
sketch1.addConstraint(Sketcher.Constraint("DistanceX", 51, 1, 51, 2, Q("15 mm")))
sketch1.addConstraint(Sketcher.Constraint("DistanceX", 53, 1, 53, 2, Q("9 mm")))
sketch1.addConstraint(Sketcher.Constraint("DistanceY", 8, 2, 8, 1, Q("5 mm")))
sketch1.addConstraint(Sketcher.Constraint("DistanceY", 49, 1, 49, 2, Q("100 mm")))
sketch1.addConstraint(Sketcher.Constraint("DistanceY", 52, 1, 52, 2, Q("6 mm")))
sketch1.addConstraint(Sketcher.Constraint("DistanceX", -1, 1, 47, 2, Q("850 mm")))
sketch1.addConstraint(Sketcher.Constraint("DistanceX", -1, 1, 55, 2, Q("1005 mm")))
sketch1.addConstraint(Sketcher.Constraint("DistanceY", 45, 2, 45, 1, Q("40.717 mm")))
sketch1.addConstraint(Sketcher.Constraint("DistanceX", 57, 1, 57, 2, Q("60.825701 mm")))
sketch1.addConstraint(Sketcher.Constraint("DistanceX", 44, 2, 44, 1, Q("397.53598 mm")))
sketch1.addConstraint(Sketcher.Constraint("DistanceX", 46, 1, 46, 2, Q("168.934822 mm")))
sketch1.addConstraint(Sketcher.Constraint("DistanceX", -1, 1, 0, 2, Q("705.075502 mm")))
sketch1.addConstraint(Sketcher.Constraint("Distance", 59, Q("78.111382 mm")))
sketch1.addConstraint(Sketcher.Constraint("DistanceX", 55, 1, 55, 2, Q("27.301603 mm")))
sketch1.addConstraint(Sketcher.Constraint("DistanceY", 0, 2, 0, 1, Q("252.330216 mm")))
sketch1.addConstraint(Sketcher.Constraint("DistanceY", 50, 2, 50, 1, Q("251.524096 mm")))
sketch1.addConstraint(Sketcher.Constraint("DistanceY", 56, 2, 56, 1, Q("104.465473 mm")))
sketch1.addConstraint(Sketcher.Constraint("DistanceY", 0, 2, -1, 1, Q("256.392629 mm")))
sketch1.addConstraint(Sketcher.Constraint("DistanceX", -1, 1, 59, 2, Q("1141.615189 mm")))
sketch1.addConstraint(Sketcher.Constraint("Distance", 58, Q("76.633767 mm")))
pad1 = body.newObject("PartDesign::Pad", "Pad")
pad1.Profile = sketch1
pad1.Length = 25
body2 = doc.addObject("PartDesign::Body", "Body001")

sketch2 = body2.newObject("Sketcher::SketchObject", "Sketch001")
sketch2.AttachmentSupport = (doc.getObject("XZ_Plane001"), [""])
sketch2.MapMode = "FlatFace"
sketch2.addGeometry(Part.LineSegment(V(539.529026, -260.455042, 0), V(539.529026, 0, 0)), False)
sketch2.addGeometry(Part.LineSegment(V(539.529026, 0, 0), V(585.699026, 0, 0)), False)
sketch2.addGeometry(Part.LineSegment(V(585.699026, 0, 0), V(585.699026, 40.717, 0)), False)
sketch2.addGeometry(Part.LineSegment(V(585.699026, 40.717, 0), V(359.718682, 40.717, 0)), False)
sketch2.addGeometry(Part.ArcOfCircle(Part.Circle(V(372.708855, -130.22754, 0), V(0, 0, 1), 171.437395), math.radians(94.345587), math.radians(130.569154)), False)
sketch2.addGeometry(Part.ArcOfCircle(Part.Circle(V(372.708854, -130.227536, 0), V(0, 0, 1), 171.437391), math.radians(130.569154), math.radians(229.43083)), False)
sketch2.addGeometry(Part.ArcOfCircle(Part.Circle(V(372.70885, -130.227545, 0), V(0, 0, 1), 171.437382), math.radians(-130.569171), math.radians(-94.345718)), False)
sketch2.addGeometry(Part.LineSegment(V(359.718287, -301.172042, 0), V(585.699421, -301.172042, 0)), False)
sketch2.addGeometry(Part.LineSegment(V(585.699421, -301.172042, 0), V(585.699421, -260.455042, 0)), False)
sketch2.addGeometry(Part.LineSegment(V(585.699421, -260.455042, 0), V(539.529026, -260.455042, 0)), False)
sketch2.addGeometry(Part.Circle(V(372.708854, -130.227536, 0), V(0, 0, 1), 105.436405), False)
sketch2.addConstraint(Sketcher.Constraint("Coincident", 0, 2, 1, 1))
sketch2.addConstraint(Sketcher.Constraint("Coincident", 1, 2, 2, 1))
sketch2.addConstraint(Sketcher.Constraint("Coincident", 2, 2, 3, 1))
sketch2.addConstraint(Sketcher.Constraint("Coincident", 3, 2, 4, 1))
sketch2.addConstraint(Sketcher.Constraint("Tangent", 4, 2, 5, 1))
sketch2.addConstraint(Sketcher.Constraint("Tangent", 5, 2, 6, 1))
sketch2.addConstraint(Sketcher.Constraint("Coincident", 6, 2, 7, 1))
sketch2.addConstraint(Sketcher.Constraint("Coincident", 7, 2, 8, 1))
sketch2.addConstraint(Sketcher.Constraint("Coincident", 8, 2, 9, 1))
sketch2.addConstraint(Sketcher.Constraint("Coincident", 9, 2, 0, 1))
sketch2.addConstraint(Sketcher.Constraint("Vertical", 0))
sketch2.addConstraint(Sketcher.Constraint("Horizontal", 1))
sketch2.addConstraint(Sketcher.Constraint("Vertical", 2))
sketch2.addConstraint(Sketcher.Constraint("Horizontal", 3))
sketch2.addConstraint(Sketcher.Constraint("Horizontal", 7))
sketch2.addConstraint(Sketcher.Constraint("Vertical", 8))
sketch2.addConstraint(Sketcher.Constraint("Horizontal", 9))
sketch2.addConstraint(Sketcher.Constraint("Coincident", 6, 3, 4, 3))
sketch2.addConstraint(Sketcher.Constraint("Coincident", 10, 3, 4, 3))
sketch2.addConstraint(Sketcher.Constraint("PointOnObject", 0, 2, -1))
sketch2.addConstraint(Sketcher.Constraint("PointOnObject", 4, 2, -1))
sketch2.addConstraint(Sketcher.Constraint("Horizontal", 5, 2, 8, 2))
sketch2.addConstraint(Sketcher.Constraint("Equal", 2, 8))
sketch2.addConstraint(Sketcher.Constraint("DistanceX", 1, 1, 1, 2, Q("46.17 mm")))
sketch2.addConstraint(Sketcher.Constraint("Diameter", 10, Q("210.87281 mm")))
sketch2.addConstraint(Sketcher.Constraint("DistanceY", 2, 1, 2, 2, Q("40.717 mm")))
sketch2.addConstraint(Sketcher.Constraint("Radius", 5, Q("171.437391 mm")))
sketch2.addConstraint(Sketcher.Constraint("DistanceY", 0, 1, 0, 2, Q("260.455042 mm")))
sketch2.addConstraint(Sketcher.Constraint("DistanceX", 3, 2, 3, 1, Q("225.980344 mm")))
sketch2.addConstraint(Sketcher.Constraint("DistanceX", 7, 1, 7, 2, Q("225.981134 mm")))
sketch2.addConstraint(Sketcher.Constraint("DistanceX", 9, 2, 9, 1, Q("46.170395 mm")))
sketch2.addConstraint(Sketcher.Constraint("DistanceX", -1, 1, 6, 3, Q("372.70885 mm")))
pad2 = body2.newObject("PartDesign::Pad", "Pad001")
pad2.Profile = sketch2
pad2.Length = 25

doc.recompute()
